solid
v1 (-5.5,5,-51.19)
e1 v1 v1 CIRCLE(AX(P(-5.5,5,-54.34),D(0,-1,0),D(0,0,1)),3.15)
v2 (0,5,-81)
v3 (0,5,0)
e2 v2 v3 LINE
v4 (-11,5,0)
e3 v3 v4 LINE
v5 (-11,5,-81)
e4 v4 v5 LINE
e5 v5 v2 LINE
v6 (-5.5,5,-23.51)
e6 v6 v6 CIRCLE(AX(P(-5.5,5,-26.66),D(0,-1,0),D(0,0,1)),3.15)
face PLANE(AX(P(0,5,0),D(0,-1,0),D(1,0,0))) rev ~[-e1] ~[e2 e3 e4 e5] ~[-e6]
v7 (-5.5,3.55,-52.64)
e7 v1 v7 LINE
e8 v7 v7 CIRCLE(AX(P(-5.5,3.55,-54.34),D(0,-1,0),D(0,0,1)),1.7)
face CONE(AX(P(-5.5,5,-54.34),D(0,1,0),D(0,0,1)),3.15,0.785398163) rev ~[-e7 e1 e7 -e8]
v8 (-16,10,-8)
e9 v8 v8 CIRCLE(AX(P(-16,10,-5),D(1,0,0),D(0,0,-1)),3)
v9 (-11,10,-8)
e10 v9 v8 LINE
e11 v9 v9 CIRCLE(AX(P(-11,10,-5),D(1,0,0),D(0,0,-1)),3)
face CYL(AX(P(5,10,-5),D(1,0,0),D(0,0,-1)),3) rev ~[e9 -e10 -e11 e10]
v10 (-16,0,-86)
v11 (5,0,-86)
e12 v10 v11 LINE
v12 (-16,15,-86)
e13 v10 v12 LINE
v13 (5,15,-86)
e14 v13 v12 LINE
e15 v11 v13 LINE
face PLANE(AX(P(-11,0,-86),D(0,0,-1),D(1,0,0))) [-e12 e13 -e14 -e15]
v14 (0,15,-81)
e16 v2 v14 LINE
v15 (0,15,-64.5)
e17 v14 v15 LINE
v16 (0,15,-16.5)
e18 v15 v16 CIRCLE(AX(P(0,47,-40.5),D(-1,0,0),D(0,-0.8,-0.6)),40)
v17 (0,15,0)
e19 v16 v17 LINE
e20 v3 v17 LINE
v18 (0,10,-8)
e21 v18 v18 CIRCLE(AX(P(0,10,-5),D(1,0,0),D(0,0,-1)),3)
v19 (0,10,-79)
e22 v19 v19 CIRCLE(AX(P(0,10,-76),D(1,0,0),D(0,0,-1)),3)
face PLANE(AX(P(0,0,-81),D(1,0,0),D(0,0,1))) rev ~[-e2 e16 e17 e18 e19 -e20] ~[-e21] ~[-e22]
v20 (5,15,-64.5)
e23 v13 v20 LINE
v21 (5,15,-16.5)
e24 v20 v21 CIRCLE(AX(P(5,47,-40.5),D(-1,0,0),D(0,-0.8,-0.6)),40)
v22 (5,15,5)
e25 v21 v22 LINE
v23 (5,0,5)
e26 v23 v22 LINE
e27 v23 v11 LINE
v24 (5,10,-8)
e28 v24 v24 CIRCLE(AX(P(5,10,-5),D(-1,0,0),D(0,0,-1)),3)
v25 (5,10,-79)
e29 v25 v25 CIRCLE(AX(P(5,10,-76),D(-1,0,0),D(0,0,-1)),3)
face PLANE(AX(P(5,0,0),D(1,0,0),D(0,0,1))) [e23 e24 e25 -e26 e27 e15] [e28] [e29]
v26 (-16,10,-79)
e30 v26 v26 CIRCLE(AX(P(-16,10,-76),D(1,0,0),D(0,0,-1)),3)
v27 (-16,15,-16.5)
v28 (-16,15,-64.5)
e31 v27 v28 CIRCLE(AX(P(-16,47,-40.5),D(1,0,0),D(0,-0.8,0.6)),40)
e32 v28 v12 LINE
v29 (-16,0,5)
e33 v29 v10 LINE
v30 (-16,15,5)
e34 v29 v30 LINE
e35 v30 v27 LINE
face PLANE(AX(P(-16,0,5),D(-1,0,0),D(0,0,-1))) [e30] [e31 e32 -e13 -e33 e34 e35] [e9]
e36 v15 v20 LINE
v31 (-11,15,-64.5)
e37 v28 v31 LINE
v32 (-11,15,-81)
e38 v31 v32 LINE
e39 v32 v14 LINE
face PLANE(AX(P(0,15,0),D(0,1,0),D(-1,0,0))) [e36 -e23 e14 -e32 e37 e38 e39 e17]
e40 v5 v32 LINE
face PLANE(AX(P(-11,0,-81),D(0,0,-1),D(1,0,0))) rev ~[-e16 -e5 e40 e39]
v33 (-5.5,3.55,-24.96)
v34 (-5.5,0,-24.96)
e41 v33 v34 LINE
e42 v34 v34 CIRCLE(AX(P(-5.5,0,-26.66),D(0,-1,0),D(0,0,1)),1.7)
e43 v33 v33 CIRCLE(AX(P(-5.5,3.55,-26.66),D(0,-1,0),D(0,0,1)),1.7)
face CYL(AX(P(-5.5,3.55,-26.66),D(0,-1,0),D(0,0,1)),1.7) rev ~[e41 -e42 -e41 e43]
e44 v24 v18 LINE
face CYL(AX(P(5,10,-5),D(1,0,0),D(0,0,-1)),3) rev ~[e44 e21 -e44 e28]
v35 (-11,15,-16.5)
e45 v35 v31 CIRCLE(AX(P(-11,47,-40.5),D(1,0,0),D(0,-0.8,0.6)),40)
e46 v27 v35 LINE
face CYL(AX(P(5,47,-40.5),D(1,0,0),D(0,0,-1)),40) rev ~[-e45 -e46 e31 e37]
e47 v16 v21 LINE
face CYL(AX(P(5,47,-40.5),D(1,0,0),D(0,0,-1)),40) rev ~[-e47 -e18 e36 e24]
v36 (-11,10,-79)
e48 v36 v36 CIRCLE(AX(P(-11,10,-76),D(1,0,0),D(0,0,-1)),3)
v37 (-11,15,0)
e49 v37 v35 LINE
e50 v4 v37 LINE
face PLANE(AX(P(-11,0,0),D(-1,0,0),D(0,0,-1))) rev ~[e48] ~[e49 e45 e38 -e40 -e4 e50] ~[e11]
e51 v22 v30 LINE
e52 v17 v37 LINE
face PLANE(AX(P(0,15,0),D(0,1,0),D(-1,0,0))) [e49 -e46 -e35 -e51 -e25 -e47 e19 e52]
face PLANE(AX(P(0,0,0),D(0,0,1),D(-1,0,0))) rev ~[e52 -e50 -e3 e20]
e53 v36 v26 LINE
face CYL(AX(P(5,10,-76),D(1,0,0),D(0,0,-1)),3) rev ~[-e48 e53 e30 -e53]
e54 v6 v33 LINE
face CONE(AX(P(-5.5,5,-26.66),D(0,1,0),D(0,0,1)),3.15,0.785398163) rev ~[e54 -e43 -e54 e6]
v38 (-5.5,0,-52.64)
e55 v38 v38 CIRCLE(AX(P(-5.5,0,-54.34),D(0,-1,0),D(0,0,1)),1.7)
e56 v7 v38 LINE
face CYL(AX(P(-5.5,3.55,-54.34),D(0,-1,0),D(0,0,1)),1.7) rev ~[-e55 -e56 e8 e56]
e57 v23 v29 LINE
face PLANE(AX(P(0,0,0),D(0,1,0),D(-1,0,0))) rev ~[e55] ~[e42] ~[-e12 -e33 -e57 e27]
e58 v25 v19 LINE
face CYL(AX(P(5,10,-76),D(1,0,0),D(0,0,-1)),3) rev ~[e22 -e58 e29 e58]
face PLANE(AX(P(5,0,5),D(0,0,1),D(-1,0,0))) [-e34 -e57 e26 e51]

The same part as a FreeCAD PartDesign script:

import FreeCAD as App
import Part
import Sketcher


def add_polygon(sketch, points):
    """Adds a closed chain of lines whose ends are joined by coincident constraints."""
    first, n = sketch.GeometryCount, len(points)
    for a, b in zip(points, points[1:] + points[:1]):
        sketch.addGeometry(Part.LineSegment(App.Vector(*a, 0), App.Vector(*b, 0)), False)
    for i in range(n):
        sketch.addConstraint(Sketcher.Constraint("Coincident", first + i, 2, first + (i + 1) % n, 1))

doc = App.newDocument("Part")
params = doc.addObject("Spreadsheet::Sheet", "Params")
for row, (alias, value) in enumerate([
    ("sketch1_height", "81 mm"),
    ("sketch1_width", "21 mm"),
    ("pad1_length", "15 mm"),
    ("sketch2_width", "11 mm"),
    ("sketch2_height", "81 mm"),
    ("pad2_length", "5 mm"),
    ("sketch3_diameter", "3.4 mm"),
    ("hole_diameter", "3.4 mm"),
    ("hole_depth", "5 mm"),
    ("hole_csink_diameter", "6.3 mm"),
    ("sketch4_diameter", "80 mm"),
    ("pocket1_length", "32 mm"),
    ("sketch5_diameter", "6 mm"),
    ("pocket2_length", "58 mm"),
], start=1):
    params.set(f"A{row}", alias)
    params.set(f"B{row}", "=" + value)
    params.setAlias(f"B{row}", alias)

body = doc.addObject("PartDesign::Body", "Body")

sketch1 = body.newObject("Sketcher::SketchObject", "Sketch")
sketch1.AttachmentSupport = (doc.getObject("XZ_Plane"), [""])
sketch1.MapMode = "FlatFace"
add_polygon(sketch1, [(5, 5), (5, -86), (-16, -86), (-16, 5)])
add_polygon(sketch1, [(0, -81), (0, 0), (-11, 0), (-11, -81)])
sketch1.addConstraint([
    Sketcher.Constraint("Vertical", 0),
    Sketcher.Constraint("Horizontal", 1),
    Sketcher.Constraint("Vertical", 2),
    Sketcher.Constraint("Horizontal", 3),
    Sketcher.Constraint("Vertical", 4),
    Sketcher.Constraint("Horizontal", 5),
    Sketcher.Constraint("Vertical", 6),
    Sketcher.Constraint("Horizontal", 7),
    Sketcher.Constraint("Coincident", 4, 2, -1, 1),
    Sketcher.Constraint("DistanceY", 4, 1, 4, 2, 81.0),
    Sketcher.Constraint("DistanceX", -1, 1, 0, 2, 5.0),
    Sketcher.Constraint("DistanceY", -1, 1, 2, 2, 5.0),
    Sketcher.Constraint("DistanceX", 2, 2, 5, 2, 5.0),
    Sketcher.Constraint("DistanceY", 1, 2, 6, 2, 5.0),
    Sketcher.Constraint("DistanceX", 1, 2, 1, 1, 21.0),
])
sketch1.setExpression("Constraints[17]", "Params.sketch1_height")
sketch1.setExpression("Constraints[22]", "Params.sketch1_width")
pad1 = body.newObject("PartDesign::Pad", "Pad")
pad1.Profile = sketch1
pad1.setExpression("Length", "Params.pad1_length")
pad1.Reversed = True

sketch2 = body.newObject("Sketcher::SketchObject", "Sketch001")
sketch2.AttachmentSupport = (doc.getObject("XZ_Plane"), [""])
sketch2.MapMode = "FlatFace"
add_polygon(sketch2, [(-11, -81), (0, -81), (0, 0), (-11, 0)])
sketch2.addConstraint([
    Sketcher.Constraint("Horizontal", 0),
    Sketcher.Constraint("Vertical", 1),
    Sketcher.Constraint("Horizontal", 2),
    Sketcher.Constraint("Vertical", 3),
    Sketcher.Constraint("Coincident", 1, 2, -1, 1),
    Sketcher.Constraint("DistanceX", 0, 1, 0, 2, 11.0),
    Sketcher.Constraint("DistanceY", 1, 1, 1, 2, 81.0),
])
sketch2.setExpression("Constraints[9]", "Params.sketch2_width")
sketch2.setExpression("Constraints[10]", "Params.sketch2_height")
pad2 = body.newObject("PartDesign::Pad", "Pad001")
pad2.Profile = sketch2
pad2.setExpression("Length", "Params.pad2_length")
pad2.Reversed = True

sketch3 = body.newObject("Sketcher::SketchObject", "Sketch002")
sketch3.AttachmentSupport = (doc.getObject("XZ_Plane"), [""])
sketch3.MapMode = "FlatFace"
sketch3.AttachmentOffset = App.Placement(App.Vector(0, 0, -5), App.Rotation())
sketch3.addGeometry([
    Part.Circle(App.Vector(-5.5, -26.7, 0), App.Vector(0, 0, 1), 1.7),
    Part.Circle(App.Vector(-5.5, -54.3, 0), App.Vector(0, 0, 1), 1.7),
], False)
sketch3.addConstraint([
    Sketcher.Constraint("Equal", 0, 1),
    Sketcher.Constraint("Vertical", 0, 3, 1, 3),
    Sketcher.Constraint("Diameter", 0, 3.4),
    Sketcher.Constraint("DistanceX", 0, 3, -1, 1, 5.5),
    Sketcher.Constraint("DistanceY", 0, 3, -1, 1, 26.66),
    Sketcher.Constraint("DistanceY", 1, 3, -1, 1, 54.34),
])
sketch3.setExpression("Constraints[2]", "Params.sketch3_diameter")
doc.recompute()
hole = body.newObject("PartDesign::Hole", "Hole")
hole.Profile = sketch3
hole.ThreadType = "None"
hole.setExpression("Diameter", "Params.hole_diameter")
hole.DepthType = "Dimension"
hole.setExpression("Depth", "Params.hole_depth")
hole.DrillPoint = "Flat"
hole.HoleCutType = "Countersink"
hole.setExpression("HoleCutDiameter", "Params.hole_csink_diameter")
hole.HoleCutCountersinkAngle = 90
hole.Reversed = True

sketch4 = body.newObject("Sketcher::SketchObject", "Sketch003")
sketch4.AttachmentSupport = (doc.getObject("YZ_Plane"), [""])
sketch4.MapMode = "FlatFace"
sketch4.AttachmentOffset = App.Placement(App.Vector(0, 0, 5), App.Rotation())
sketch4.addGeometry(Part.Circle(App.Vector(47, -40, 0), App.Vector(0, 0, 1), 40), False)
sketch4.addConstraint([
    Sketcher.Constraint("Diameter", 0, 80.0),
    Sketcher.Constraint("DistanceX", -1, 1, 0, 3, 47.0),
    Sketcher.Constraint("DistanceY", 0, 3, -1, 1, 40.5),
])
sketch4.setExpression("Constraints[0]", "Params.sketch4_diameter")
pocket1 = body.newObject("PartDesign::Pocket", "Pocket")
pocket1.Profile = sketch4
pocket1.setExpression("Length", "Params.pocket1_length")

sketch5 = body.newObject("Sketcher::SketchObject", "Sketch004")
sketch5.AttachmentSupport = (doc.getObject("YZ_Plane"), [""])
sketch5.MapMode = "FlatFace"
sketch5.AttachmentOffset = App.Placement(App.Vector(0, 0, 5), App.Rotation())
sketch5.addGeometry([
    Part.Circle(App.Vector(10, -5, 0), App.Vector(0, 0, 1), 3),
    Part.Circle(App.Vector(10, -76, 0), App.Vector(0, 0, 1), 3),
], False)
sketch5.addConstraint([
    Sketcher.Constraint("Equal", 0, 1),
    Sketcher.Constraint("Vertical", 0, 3, 1, 3),
    Sketcher.Constraint("Diameter", 0, 6.0),
    Sketcher.Constraint("DistanceX", -1, 1, 0, 3, 10.0),
    Sketcher.Constraint("DistanceY", 0, 3, -1, 1, 5.0),
    Sketcher.Constraint("DistanceY", 1, 3, -1, 1, 76.0),
])
sketch5.setExpression("Constraints[2]", "Params.sketch5_diameter")
pocket2 = body.newObject("PartDesign::Pocket", "Pocket001")
pocket2.Profile = sketch5
pocket2.setExpression("Length", "Params.pocket2_length")

doc.recompute()
